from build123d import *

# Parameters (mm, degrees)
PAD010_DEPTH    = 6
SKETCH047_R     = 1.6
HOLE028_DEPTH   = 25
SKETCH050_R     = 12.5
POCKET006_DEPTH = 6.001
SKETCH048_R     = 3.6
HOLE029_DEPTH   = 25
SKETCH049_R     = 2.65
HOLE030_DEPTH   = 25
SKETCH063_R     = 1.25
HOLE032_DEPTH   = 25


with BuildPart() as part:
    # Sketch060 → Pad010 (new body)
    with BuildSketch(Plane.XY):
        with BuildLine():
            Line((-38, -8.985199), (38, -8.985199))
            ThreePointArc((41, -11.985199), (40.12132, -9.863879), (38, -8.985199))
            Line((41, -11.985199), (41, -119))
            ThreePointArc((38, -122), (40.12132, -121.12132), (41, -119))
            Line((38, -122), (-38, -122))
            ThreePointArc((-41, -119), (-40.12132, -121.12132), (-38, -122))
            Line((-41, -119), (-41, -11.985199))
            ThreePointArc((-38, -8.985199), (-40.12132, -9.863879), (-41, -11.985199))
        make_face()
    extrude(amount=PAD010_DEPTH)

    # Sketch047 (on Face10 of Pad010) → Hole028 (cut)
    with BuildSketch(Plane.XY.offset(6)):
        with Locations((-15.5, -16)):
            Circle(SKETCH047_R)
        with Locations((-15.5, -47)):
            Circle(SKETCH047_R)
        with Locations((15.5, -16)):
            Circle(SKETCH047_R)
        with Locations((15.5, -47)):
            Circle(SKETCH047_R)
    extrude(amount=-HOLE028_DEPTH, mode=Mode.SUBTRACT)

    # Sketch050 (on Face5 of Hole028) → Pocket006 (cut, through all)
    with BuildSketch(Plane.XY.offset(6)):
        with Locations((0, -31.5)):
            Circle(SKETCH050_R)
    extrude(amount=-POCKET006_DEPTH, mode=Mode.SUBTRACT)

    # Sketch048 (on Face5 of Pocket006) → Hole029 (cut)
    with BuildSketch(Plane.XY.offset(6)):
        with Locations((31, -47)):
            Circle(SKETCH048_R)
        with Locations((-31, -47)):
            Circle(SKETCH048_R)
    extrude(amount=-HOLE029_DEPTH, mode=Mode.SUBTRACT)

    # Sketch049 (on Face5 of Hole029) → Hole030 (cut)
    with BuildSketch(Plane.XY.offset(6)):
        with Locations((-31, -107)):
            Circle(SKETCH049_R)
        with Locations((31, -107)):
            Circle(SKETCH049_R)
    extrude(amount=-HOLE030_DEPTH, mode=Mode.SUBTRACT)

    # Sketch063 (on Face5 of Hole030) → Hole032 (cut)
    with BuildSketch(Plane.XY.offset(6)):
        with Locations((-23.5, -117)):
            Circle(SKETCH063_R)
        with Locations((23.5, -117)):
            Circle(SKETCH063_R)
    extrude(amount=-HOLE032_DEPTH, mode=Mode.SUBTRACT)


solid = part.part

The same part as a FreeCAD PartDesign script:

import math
import FreeCAD as App
import Part
import Sketcher

V = App.Vector
Q = App.Units.Quantity

doc = App.newDocument("Part")
params = doc.addObject("Spreadsheet::Sheet", "Params")
for row, (alias, value) in enumerate([
    ("sketch1_radius", "3.000001 mm"),
    ("sketch1_width", "76 mm"),
    ("pad1_length", "6 mm"),
    ("sketch2_diameter", "3.2 mm"),
    ("pocket1_length", "25 mm"),
    ("sketch3_diameter", "25 mm"),
    ("sketch4_diameter", "7.2 mm"),
    ("pocket3_length", "25 mm"),
    ("sketch5_diameter", "5.3 mm"),
    ("pocket4_length", "25 mm"),
    ("sketch6_diameter", "2.5 mm"),
    ("pocket5_length", "25 mm"),
], start=1):
    params.set(f"A{row}", alias)
    params.set(f"B{row}", "=" + value)
    params.setAlias(f"B{row}", alias)

body = doc.addObject("PartDesign::Body", "Body")

# Sketch on XY plane
sketch1 = body.newObject("Sketcher::SketchObject", "Sketch")
sketch1.AttachmentSupport = (doc.getObject("XY_Plane"), [""])
sketch1.MapMode = "FlatFace"
sketch1.addGeometry(Part.LineSegment(V(38, -9, 0), V(-38, -9, 0)), False)
sketch1.addGeometry(Part.ArcOfCircle(Part.Circle(V(-38, -12, 0), V(0, 0, 1), 3), math.radians(90), math.radians(180)), False)
sketch1.addGeometry(Part.LineSegment(V(-41, -12, 0), V(-41, -119, 0)), False)
sketch1.addGeometry(Part.ArcOfCircle(Part.Circle(V(-38, -119, 0), V(0, 0, 1), 3), math.radians(-180), math.radians(-90)), False)
sketch1.addGeometry(Part.LineSegment(V(-38, -122, 0), V(38, -122, 0)), False)
sketch1.addGeometry(Part.ArcOfCircle(Part.Circle(V(38, -119, 0), V(0, 0, 1), 3), math.radians(-90), math.radians(0)), False)
sketch1.addGeometry(Part.LineSegment(V(41, -119, 0), V(41, -12, 0)), False)
sketch1.addGeometry(Part.ArcOfCircle(Part.Circle(V(38, -12, 0), V(0, 0, 1), 3), math.radians(0), math.radians(90)), False)
sketch1.addConstraint(Sketcher.Constraint("Tangent", 0, 2, 1, 1))
sketch1.addConstraint(Sketcher.Constraint("Tangent", 1, 2, 2, 1))
sketch1.addConstraint(Sketcher.Constraint("Tangent", 2, 2, 3, 1))
sketch1.addConstraint(Sketcher.Constraint("Tangent", 3, 2, 4, 1))
sketch1.addConstraint(Sketcher.Constraint("Tangent", 4, 2, 5, 1))
sketch1.addConstraint(Sketcher.Constraint("Tangent", 5, 2, 6, 1))
sketch1.addConstraint(Sketcher.Constraint("Tangent", 6, 2, 7, 1))
sketch1.addConstraint(Sketcher.Constraint("Tangent", 7, 2, 0, 1))
sketch1.addConstraint(Sketcher.Constraint("Horizontal", 0))
sketch1.addConstraint(Sketcher.Constraint("Vertical", 2))
sketch1.addConstraint(Sketcher.Constraint("Horizontal", 4))
sketch1.addConstraint(Sketcher.Constraint("Vertical", 6))
sketch1.addConstraint(Sketcher.Constraint("Equal", 1, 3))
sketch1.addConstraint(Sketcher.Constraint("Equal", 3, 5))
sketch1.addConstraint(Sketcher.Constraint("Equal", 5, 7))
sketch1.addConstraint(Sketcher.Constraint("Radius", 1, Q("3.000001 mm")))
sketch1.addConstraint(Sketcher.Constraint("DistanceX", 0, 2, 0, 1, Q("76 mm")))
sketch1.addConstraint(Sketcher.Constraint("DistanceX", 1, 3, -1, 1, Q("37.999999 mm")))
sketch1.addConstraint(Sketcher.Constraint("DistanceY", 3, 3, -1, 1, Q("118.999999 mm")))
sketch1.addConstraint(Sketcher.Constraint("DistanceY", 2, 2, 2, 1, Q("107.014801 mm")))
sketch1.setExpression("Constraints[15]", "Params.sketch1_radius")
sketch1.setExpression("Constraints[16]", "Params.sketch1_width")
pad1 = body.newObject("PartDesign::Pad", "Pad")
pad1.Profile = sketch1
pad1.setExpression("Length", "Params.pad1_length")

# Sketch on XY plane
sketch2 = body.newObject("Sketcher::SketchObject", "Sketch001")
sketch2.AttachmentSupport = (doc.getObject("XY_Plane"), [""])
sketch2.MapMode = "FlatFace"
sketch2.AttachmentOffset = App.Placement(V(0, 0, 6), App.Rotation())
sketch2.addGeometry(Part.Circle(V(-15.5, -16, 0), V(0, 0, 1), 1.6), False)
sketch2.addGeometry(Part.Circle(V(-15.5, -47, 0), V(0, 0, 1), 1.6), False)
sketch2.addGeometry(Part.Circle(V(15.5, -16, 0), V(0, 0, 1), 1.6), False)
sketch2.addGeometry(Part.Circle(V(15.5, -47, 0), V(0, 0, 1), 1.6), False)
sketch2.addConstraint(Sketcher.Constraint("Equal", 0, 1))
sketch2.addConstraint(Sketcher.Constraint("Equal", 1, 2))
sketch2.addConstraint(Sketcher.Constraint("Equal", 2, 3))
sketch2.addConstraint(Sketcher.Constraint("Symmetric", 0, 3, 2, 3, -2))
sketch2.addConstraint(Sketcher.Constraint("Symmetric", 1, 3, 3, 3, -2))
sketch2.addConstraint(Sketcher.Constraint("Vertical", 0, 3, 1, 3))
sketch2.addConstraint(Sketcher.Constraint("Diameter", 0, Q("3.2 mm")))
sketch2.addConstraint(Sketcher.Constraint("DistanceY", 0, 3, -1, 1, Q("16 mm")))
sketch2.addConstraint(Sketcher.Constraint("DistanceY", 1, 3, -1, 1, Q("47 mm")))
sketch2.addConstraint(Sketcher.Constraint("DistanceX", 0, 3, 2, 3, Q("31 mm")))
sketch2.setExpression("Constraints[6]", "Params.sketch2_diameter")
pocket1 = body.newObject("PartDesign::Pocket", "Pocket")
pocket1.Profile = sketch2
pocket1.setExpression("Length", "Params.pocket1_length")

# Sketch on XY plane
sketch3 = body.newObject("Sketcher::SketchObject", "Sketch002")
sketch3.AttachmentSupport = (doc.getObject("XY_Plane"), [""])
sketch3.MapMode = "FlatFace"
sketch3.AttachmentOffset = App.Placement(V(0, 0, 6), App.Rotation())
sketch3.addGeometry(Part.Circle(V(0, -32, 0), V(0, 0, 1), 12), False)
sketch3.addConstraint(Sketcher.Constraint("PointOnObject", 0, 3, -2))
sketch3.addConstraint(Sketcher.Constraint("Diameter", 0, Q("25 mm")))
sketch3.addConstraint(Sketcher.Constraint("DistanceY", 0, 3, -1, 1, Q("31.5 mm")))
sketch3.setExpression("Constraints[1]", "Params.sketch3_diameter")
pocket2 = body.newObject("PartDesign::Pocket", "Pocket001")
pocket2.Profile = sketch3
pocket2.Type = "ThroughAll"

# Sketch on XY plane
sketch4 = body.newObject("Sketcher::SketchObject", "Sketch003")
sketch4.AttachmentSupport = (doc.getObject("XY_Plane"), [""])
sketch4.MapMode = "FlatFace"
sketch4.AttachmentOffset = App.Placement(V(0, 0, 6), App.Rotation())
sketch4.addGeometry(Part.Circle(V(31, -47, 0), V(0, 0, 1), 3.6), False)
sketch4.addGeometry(Part.Circle(V(-31, -47, 0), V(0, 0, 1), 3.6), False)
sketch4.addConstraint(Sketcher.Constraint("Equal", 0, 1))
sketch4.addConstraint(Sketcher.Constraint("Symmetric", 0, 3, 1, 3, -2))
sketch4.addConstraint(Sketcher.Constraint("Diameter", 0, Q("7.2 mm")))
sketch4.addConstraint(Sketcher.Constraint("DistanceX", -1, 1, 0, 3, Q("31 mm")))
sketch4.addConstraint(Sketcher.Constraint("DistanceY", 0, 3, -1, 1, Q("47 mm")))
sketch4.setExpression("Constraints[2]", "Params.sketch4_diameter")
pocket3 = body.newObject("PartDesign::Pocket", "Pocket002")
pocket3.Profile = sketch4
pocket3.setExpression("Length", "Params.pocket3_length")

# Sketch on XY plane
sketch5 = body.newObject("Sketcher::SketchObject", "Sketch004")
sketch5.AttachmentSupport = (doc.getObject("XY_Plane"), [""])
sketch5.MapMode = "FlatFace"
sketch5.AttachmentOffset = App.Placement(V(0, 0, 6), App.Rotation())
sketch5.addGeometry(Part.Circle(V(-31, -107, 0), V(0, 0, 1), 2.6), False)
sketch5.addGeometry(Part.Circle(V(31, -107, 0), V(0, 0, 1), 2.6), False)
sketch5.addConstraint(Sketcher.Constraint("Equal", 0, 1))
sketch5.addConstraint(Sketcher.Constraint("Symmetric", 0, 3, 1, 3, -2))
sketch5.addConstraint(Sketcher.Constraint("Diameter", 0, Q("5.3 mm")))
sketch5.addConstraint(Sketcher.Constraint("DistanceX", 0, 3, -1, 1, Q("31 mm")))
sketch5.addConstraint(Sketcher.Constraint("DistanceY", 0, 3, -1, 1, Q("107 mm")))
sketch5.setExpression("Constraints[2]", "Params.sketch5_diameter")
pocket4 = body.newObject("PartDesign::Pocket", "Pocket003")
pocket4.Profile = sketch5
pocket4.setExpression("Length", "Params.pocket4_length")

# Sketch on XY plane
sketch6 = body.newObject("Sketcher::SketchObject", "Sketch005")
sketch6.AttachmentSupport = (doc.getObject("XY_Plane"), [""])
sketch6.MapMode = "FlatFace"
sketch6.AttachmentOffset = App.Placement(V(0, 0, 6), App.Rotation())
sketch6.addGeometry(Part.Circle(V(-23.5, -117, 0), V(0, 0, 1), 1.2), False)
sketch6.addGeometry(Part.Circle(V(23.5, -117, 0), V(0, 0, 1), 1.2), False)
sketch6.addConstraint(Sketcher.Constraint("Equal", 0, 1))
sketch6.addConstraint(Sketcher.Constraint("Symmetric", 0, 3, 1, 3, -2))
sketch6.addConstraint(Sketcher.Constraint("Diameter", 0, Q("2.5 mm")))
sketch6.addConstraint(Sketcher.Constraint("DistanceY", 0, 3, -1, 1, Q("117 mm")))
sketch6.addConstraint(Sketcher.Constraint("DistanceX", 0, 3, 1, 3, Q("47 mm")))
sketch6.setExpression("Constraints[2]", "Params.sketch6_diameter")
pocket5 = body.newObject("PartDesign::Pocket", "Pocket004")
pocket5.Profile = sketch6
pocket5.setExpression("Length", "Params.pocket5_length")

doc.recompute()
